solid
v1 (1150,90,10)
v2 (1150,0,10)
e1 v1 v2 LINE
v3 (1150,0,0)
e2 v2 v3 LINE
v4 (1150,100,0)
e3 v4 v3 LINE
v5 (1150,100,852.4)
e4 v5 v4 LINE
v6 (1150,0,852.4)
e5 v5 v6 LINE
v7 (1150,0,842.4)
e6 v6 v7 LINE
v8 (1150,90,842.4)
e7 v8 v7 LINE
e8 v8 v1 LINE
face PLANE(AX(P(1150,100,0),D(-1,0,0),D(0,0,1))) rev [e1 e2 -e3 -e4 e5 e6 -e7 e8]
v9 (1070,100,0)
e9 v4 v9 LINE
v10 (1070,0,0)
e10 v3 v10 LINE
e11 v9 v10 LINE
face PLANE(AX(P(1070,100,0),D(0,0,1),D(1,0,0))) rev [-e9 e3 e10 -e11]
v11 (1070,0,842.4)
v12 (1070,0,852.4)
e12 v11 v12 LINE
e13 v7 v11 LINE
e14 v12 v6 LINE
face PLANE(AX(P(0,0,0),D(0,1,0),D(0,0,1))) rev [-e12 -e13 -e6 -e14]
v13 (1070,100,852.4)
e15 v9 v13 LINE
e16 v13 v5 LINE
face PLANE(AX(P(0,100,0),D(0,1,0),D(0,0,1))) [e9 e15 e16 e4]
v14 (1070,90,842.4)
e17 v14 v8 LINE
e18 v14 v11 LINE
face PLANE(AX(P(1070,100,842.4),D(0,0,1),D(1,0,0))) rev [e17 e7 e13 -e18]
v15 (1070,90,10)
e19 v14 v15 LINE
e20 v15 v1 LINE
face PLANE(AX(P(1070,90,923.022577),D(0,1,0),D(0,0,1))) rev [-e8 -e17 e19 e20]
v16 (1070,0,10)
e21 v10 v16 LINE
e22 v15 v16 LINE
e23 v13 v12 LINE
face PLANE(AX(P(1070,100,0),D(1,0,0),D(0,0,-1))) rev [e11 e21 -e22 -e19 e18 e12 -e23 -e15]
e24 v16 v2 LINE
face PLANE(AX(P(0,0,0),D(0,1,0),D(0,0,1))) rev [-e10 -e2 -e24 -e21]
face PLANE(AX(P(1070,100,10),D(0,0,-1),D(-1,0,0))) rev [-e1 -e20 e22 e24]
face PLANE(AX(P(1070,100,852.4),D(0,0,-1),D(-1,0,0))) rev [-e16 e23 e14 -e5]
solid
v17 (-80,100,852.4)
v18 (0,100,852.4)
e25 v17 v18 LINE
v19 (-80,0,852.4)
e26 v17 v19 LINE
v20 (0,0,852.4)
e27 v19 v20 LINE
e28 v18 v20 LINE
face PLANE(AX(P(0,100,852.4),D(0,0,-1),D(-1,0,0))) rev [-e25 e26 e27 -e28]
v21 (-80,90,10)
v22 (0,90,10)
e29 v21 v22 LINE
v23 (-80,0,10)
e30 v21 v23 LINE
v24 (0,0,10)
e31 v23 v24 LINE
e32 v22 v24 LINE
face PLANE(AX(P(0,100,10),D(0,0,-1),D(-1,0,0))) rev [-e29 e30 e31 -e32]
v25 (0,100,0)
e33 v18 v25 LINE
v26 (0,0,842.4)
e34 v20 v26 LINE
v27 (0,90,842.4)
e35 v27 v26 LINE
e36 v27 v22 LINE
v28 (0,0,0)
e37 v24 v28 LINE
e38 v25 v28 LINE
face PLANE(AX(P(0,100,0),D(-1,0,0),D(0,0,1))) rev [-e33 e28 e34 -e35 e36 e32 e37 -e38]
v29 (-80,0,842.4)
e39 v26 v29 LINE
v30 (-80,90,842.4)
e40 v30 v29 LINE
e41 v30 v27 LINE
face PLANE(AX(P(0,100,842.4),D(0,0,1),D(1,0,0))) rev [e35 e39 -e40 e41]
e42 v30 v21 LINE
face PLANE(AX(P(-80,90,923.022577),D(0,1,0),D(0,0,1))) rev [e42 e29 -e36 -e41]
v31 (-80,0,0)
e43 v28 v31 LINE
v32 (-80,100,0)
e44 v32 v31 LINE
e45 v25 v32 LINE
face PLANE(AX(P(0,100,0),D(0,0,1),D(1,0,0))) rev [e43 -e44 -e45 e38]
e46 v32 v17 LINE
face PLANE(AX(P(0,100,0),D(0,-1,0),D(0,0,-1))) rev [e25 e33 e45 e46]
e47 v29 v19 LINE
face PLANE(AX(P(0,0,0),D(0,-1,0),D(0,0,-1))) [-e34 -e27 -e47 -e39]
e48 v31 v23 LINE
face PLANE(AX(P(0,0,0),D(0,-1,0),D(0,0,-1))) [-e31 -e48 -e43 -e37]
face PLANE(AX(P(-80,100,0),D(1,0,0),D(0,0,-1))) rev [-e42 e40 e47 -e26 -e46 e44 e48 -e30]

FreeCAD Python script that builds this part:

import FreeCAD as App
import Part
import Sketcher

V = App.Vector

doc = App.newDocument("Part")
body = doc.addObject("PartDesign::Body", "Body")

# Sketch on XZ plane
sketch1 = body.newObject("Sketcher::SketchObject", "Sketch")
sketch1.AttachmentSupport = (doc.getObject("XZ_Plane"), [""])
sketch1.MapMode = "FlatFace"
sketch1.addGeometry(Part.LineSegment(V(-80, 0, 0), V(-80, 10, 0)), False)
sketch1.addGeometry(Part.LineSegment(V(-80, 10, 0), V(0, 10, 0)), False)
sketch1.addGeometry(Part.LineSegment(V(0, 10, 0), V(0, 0, 0)), False)
sketch1.addGeometry(Part.LineSegment(V(0, 0, 0), V(-80, 0, 0)), False)
sketch1.addConstraint(Sketcher.Constraint("Coincident", 0, 2, 1, 1))
sketch1.addConstraint(Sketcher.Constraint("Coincident", 1, 2, 2, 1))
sketch1.addConstraint(Sketcher.Constraint("Coincident", 2, 2, 3, 1))
sketch1.addConstraint(Sketcher.Constraint("Coincident", 3, 2, 0, 1))
sketch1.addConstraint(Sketcher.Constraint("Vertical", 0))
sketch1.addConstraint(Sketcher.Constraint("Horizontal", 1))
sketch1.addConstraint(Sketcher.Constraint("Vertical", 2))
sketch1.addConstraint(Sketcher.Constraint("Horizontal", 3))
sketch1.addConstraint(Sketcher.Constraint("Coincident", 2, 2, -1, 1))
sketch1.addConstraint(Sketcher.Constraint("DistanceX", 1, 1, 1, 2, 80.0))
sketch1.addConstraint(Sketcher.Constraint("DistanceY", 0, 1, 0, 2, 10.0))
pad1 = body.newObject("PartDesign::Pad", "Pad")
pad1.Profile = sketch1
pad1.Length = 100
pad1.Reversed = True
body2 = doc.addObject("PartDesign::Body", "Body001")

# Sketch on XZ plane
sketch2 = body2.newObject("Sketcher::SketchObject", "Sketch001")
sketch2.AttachmentSupport = (doc.getObject("XZ_Plane001"), [""])
sketch2.MapMode = "FlatFace"
sketch2.addGeometry(Part.LineSegment(V(1070, 0, 0), V(1070, 10, 0)), False)
sketch2.addGeometry(Part.LineSegment(V(1070, 10, 0), V(1150, 10, 0)), False)
sketch2.addGeometry(Part.LineSegment(V(1150, 10, 0), V(1150, 0, 0)), False)
sketch2.addGeometry(Part.LineSegment(V(1150, 0, 0), V(1070, 0, 0)), False)
sketch2.addConstraint(Sketcher.Constraint("Coincident", 0, 2, 1, 1))
sketch2.addConstraint(Sketcher.Constraint("Coincident", 1, 2, 2, 1))
sketch2.addConstraint(Sketcher.Constraint("Coincident", 2, 2, 3, 1))
sketch2.addConstraint(Sketcher.Constraint("Coincident", 3, 2, 0, 1))
sketch2.addConstraint(Sketcher.Constraint("Vertical", 0))
sketch2.addConstraint(Sketcher.Constraint("Horizontal", 1))
sketch2.addConstraint(Sketcher.Constraint("Vertical", 2))
sketch2.addConstraint(Sketcher.Constraint("Horizontal", 3))
sketch2.addConstraint(Sketcher.Constraint("PointOnObject", 2, 2, -1))
sketch2.addConstraint(Sketcher.Constraint("DistanceX", 1, 1, 1, 2, 80.0))
sketch2.addConstraint(Sketcher.Constraint("DistanceY", 0, 1, 0, 2, 10.0))
sketch2.addConstraint(Sketcher.Constraint("DistanceX", -1, 1, 0, 2, 1070.0))
pad2 = body2.newObject("PartDesign::Pad", "Pad001")
pad2.Profile = sketch2
pad2.Length = 100
pad2.Reversed = True
body3 = doc.addObject("PartDesign::Body", "Body002")

# Sketch on XZ plane
sketch3 = body3.newObject("Sketcher::SketchObject", "Sketch002")
sketch3.AttachmentSupport = (doc.getObject("XZ_Plane002"), [""])
sketch3.MapMode = "FlatFace"
sketch3.addGeometry(Part.LineSegment(V(1070, 842.4, 0), V(1070, 852.4, 0)), False)
sketch3.addGeometry(Part.LineSegment(V(1070, 852.4, 0), V(1150, 852.4, 0)), False)
sketch3.addGeometry(Part.LineSegment(V(1150, 852.4, 0), V(1150, 842.4, 0)), False)
sketch3.addGeometry(Part.LineSegment(V(1150, 842.4, 0), V(1070, 842.4, 0)), False)
sketch3.addConstraint(Sketcher.Constraint("Coincident", 0, 2, 1, 1))
sketch3.addConstraint(Sketcher.Constraint("Coincident", 1, 2, 2, 1))
sketch3.addConstraint(Sketcher.Constraint("Coincident", 2, 2, 3, 1))
sketch3.addConstraint(Sketcher.Constraint("Coincident", 3, 2, 0, 1))
sketch3.addConstraint(Sketcher.Constraint("Vertical", 0))
sketch3.addConstraint(Sketcher.Constraint("Horizontal", 1))
sketch3.addConstraint(Sketcher.Constraint("Vertical", 2))
sketch3.addConstraint(Sketcher.Constraint("Horizontal", 3))
sketch3.addConstraint(Sketcher.Constraint("DistanceX", 1, 1, 1, 2, 80.0))
sketch3.addConstraint(Sketcher.Constraint("DistanceY", 0, 1, 0, 2, 10.0))
sketch3.addConstraint(Sketcher.Constraint("DistanceX", -1, 1, 0, 2, 1070.0))
sketch3.addConstraint(Sketcher.Constraint("DistanceY", -1, 1, 0, 2, 852.4))
pad3 = body3.newObject("PartDesign::Pad", "Pad002")
pad3.Profile = sketch3
pad3.Length = 100
pad3.Reversed = True
body4 = doc.addObject("PartDesign::Body", "Body003")

# Sketch on XZ plane
sketch4 = body4.newObject("Sketcher::SketchObject", "Sketch003")
sketch4.AttachmentSupport = (doc.getObject("XZ_Plane003"), [""])
sketch4.MapMode = "FlatFace"
sketch4.addGeometry(Part.LineSegment(V(-80, 842.4, 0), V(-80, 852.4, 0)), False)
sketch4.addGeometry(Part.LineSegment(V(-80, 852.4, 0), V(0, 852.4, 0)), False)
sketch4.addGeometry(Part.LineSegment(V(0, 852.4, 0), V(0, 842.4, 0)), False)
sketch4.addGeometry(Part.LineSegment(V(0, 842.4, 0), V(-80, 842.4, 0)), False)
sketch4.addConstraint(Sketcher.Constraint("Coincident", 0, 2, 1, 1))
sketch4.addConstraint(Sketcher.Constraint("Coincident", 1, 2, 2, 1))
sketch4.addConstraint(Sketcher.Constraint("Coincident", 2, 2, 3, 1))
sketch4.addConstraint(Sketcher.Constraint("Coincident", 3, 2, 0, 1))
sketch4.addConstraint(Sketcher.Constraint("Vertical", 0))
sketch4.addConstraint(Sketcher.Constraint("Horizontal", 1))
sketch4.addConstraint(Sketcher.Constraint("Vertical", 2))
sketch4.addConstraint(Sketcher.Constraint("Horizontal", 3))
sketch4.addConstraint(Sketcher.Constraint("PointOnObject", 1, 2, -2))
sketch4.addConstraint(Sketcher.Constraint("DistanceX", 1, 1, 1, 2, 80.0))
sketch4.addConstraint(Sketcher.Constraint("DistanceY", 0, 1, 0, 2, 10.0))
sketch4.addConstraint(Sketcher.Constraint("DistanceY", -1, 1, 0, 2, 852.4))
pad4 = body4.newObject("PartDesign::Pad", "Pad003")
pad4.Profile = sketch4
pad4.Length = 100
pad4.Reversed = True
body.AllowCompound = True
doc.recompute()

boolean = body.newObject("PartDesign::Boolean", "Boolean")
boolean.Type = "Fuse"
boolean.addObjects([body2])
doc.recompute()

boolean2 = body.newObject("PartDesign::Boolean", "Boolean001")
boolean2.Type = "Fuse"
boolean2.addObjects([body3])
doc.recompute()

boolean3 = body.newObject("PartDesign::Boolean", "Boolean002")
boolean3.Type = "Fuse"
boolean3.addObjects([body4])

# Sketch on XY plane
sketch5 = body.newObject("Sketcher::SketchObject", "Sketch004")
sketch5.AttachmentSupport = (doc.getObject("XY_Plane"), [""])
sketch5.MapMode = "FlatFace"
sketch5.AttachmentOffset = App.Placement(V(0, 0, 10), App.Rotation())
sketch5.addGeometry(Part.LineSegment(V(-80, 100, 0), V(-80, 90, 0)), False)
sketch5.addGeometry(Part.LineSegment(V(-80, 90, 0), V(0, 90, 0)), False)
sketch5.addGeometry(Part.LineSegment(V(0, 90, 0), V(0, 100, 0)), False)
sketch5.addGeometry(Part.LineSegment(V(0, 100, 0), V(-80, 100, 0)), False)
sketch5.addGeometry(Part.LineSegment(V(1070, 100, 0), V(1070, 90, 0)), False)
sketch5.addGeometry(Part.LineSegment(V(1070, 90, 0), V(1150, 90, 0)), False)
sketch5.addGeometry(Part.LineSegment(V(1150, 90, 0), V(1150, 100, 0)), False)
sketch5.addGeometry(Part.LineSegment(V(1150, 100, 0), V(1070, 100, 0)), False)
sketch5.addConstraint(Sketcher.Constraint("Coincident", 0, 2, 1, 1))
sketch5.addConstraint(Sketcher.Constraint("Coincident", 1, 2, 2, 1))
sketch5.addConstraint(Sketcher.Constraint("Coincident", 2, 2, 3, 1))
sketch5.addConstraint(Sketcher.Constraint("Coincident", 3, 2, 0, 1))
sketch5.addConstraint(Sketcher.Constraint("Coincident", 4, 2, 5, 1))
sketch5.addConstraint(Sketcher.Constraint("Coincident", 5, 2, 6, 1))
sketch5.addConstraint(Sketcher.Constraint("Coincident", 6, 2, 7, 1))
sketch5.addConstraint(Sketcher.Constraint("Coincident", 7, 2, 4, 1))
sketch5.addConstraint(Sketcher.Constraint("Vertical", 0))
sketch5.addConstraint(Sketcher.Constraint("Horizontal", 1))
sketch5.addConstraint(Sketcher.Constraint("Vertical", 2))
sketch5.addConstraint(Sketcher.Constraint("Horizontal", 3))
sketch5.addConstraint(Sketcher.Constraint("Vertical", 4))
sketch5.addConstraint(Sketcher.Constraint("Horizontal", 5))
sketch5.addConstraint(Sketcher.Constraint("Vertical", 6))
sketch5.addConstraint(Sketcher.Constraint("Horizontal", 7))
sketch5.addConstraint(Sketcher.Constraint("PointOnObject", 1, 2, -2))
sketch5.addConstraint(Sketcher.Constraint("Horizontal", 1, 2, 4, 2))
sketch5.addConstraint(Sketcher.Constraint("Horizontal", 3, 2, 6, 2))
sketch5.addConstraint(Sketcher.Constraint("Equal", 3, 5))
sketch5.addConstraint(Sketcher.Constraint("DistanceX", 1, 1, 1, 2, 80.0))
sketch5.addConstraint(Sketcher.Constraint("DistanceY", 0, 2, 0, 1, 10.0))
sketch5.addConstraint(Sketcher.Constraint("DistanceY", -1, 1, 0, 2, 90.0))
sketch5.addConstraint(Sketcher.Constraint("DistanceX", -1, 1, 4, 2, 1070.0))
pad5 = body.newObject("PartDesign::Pad", "Pad004")
pad5.Profile = sketch5
pad5.Length = 832.4

doc.recompute()
